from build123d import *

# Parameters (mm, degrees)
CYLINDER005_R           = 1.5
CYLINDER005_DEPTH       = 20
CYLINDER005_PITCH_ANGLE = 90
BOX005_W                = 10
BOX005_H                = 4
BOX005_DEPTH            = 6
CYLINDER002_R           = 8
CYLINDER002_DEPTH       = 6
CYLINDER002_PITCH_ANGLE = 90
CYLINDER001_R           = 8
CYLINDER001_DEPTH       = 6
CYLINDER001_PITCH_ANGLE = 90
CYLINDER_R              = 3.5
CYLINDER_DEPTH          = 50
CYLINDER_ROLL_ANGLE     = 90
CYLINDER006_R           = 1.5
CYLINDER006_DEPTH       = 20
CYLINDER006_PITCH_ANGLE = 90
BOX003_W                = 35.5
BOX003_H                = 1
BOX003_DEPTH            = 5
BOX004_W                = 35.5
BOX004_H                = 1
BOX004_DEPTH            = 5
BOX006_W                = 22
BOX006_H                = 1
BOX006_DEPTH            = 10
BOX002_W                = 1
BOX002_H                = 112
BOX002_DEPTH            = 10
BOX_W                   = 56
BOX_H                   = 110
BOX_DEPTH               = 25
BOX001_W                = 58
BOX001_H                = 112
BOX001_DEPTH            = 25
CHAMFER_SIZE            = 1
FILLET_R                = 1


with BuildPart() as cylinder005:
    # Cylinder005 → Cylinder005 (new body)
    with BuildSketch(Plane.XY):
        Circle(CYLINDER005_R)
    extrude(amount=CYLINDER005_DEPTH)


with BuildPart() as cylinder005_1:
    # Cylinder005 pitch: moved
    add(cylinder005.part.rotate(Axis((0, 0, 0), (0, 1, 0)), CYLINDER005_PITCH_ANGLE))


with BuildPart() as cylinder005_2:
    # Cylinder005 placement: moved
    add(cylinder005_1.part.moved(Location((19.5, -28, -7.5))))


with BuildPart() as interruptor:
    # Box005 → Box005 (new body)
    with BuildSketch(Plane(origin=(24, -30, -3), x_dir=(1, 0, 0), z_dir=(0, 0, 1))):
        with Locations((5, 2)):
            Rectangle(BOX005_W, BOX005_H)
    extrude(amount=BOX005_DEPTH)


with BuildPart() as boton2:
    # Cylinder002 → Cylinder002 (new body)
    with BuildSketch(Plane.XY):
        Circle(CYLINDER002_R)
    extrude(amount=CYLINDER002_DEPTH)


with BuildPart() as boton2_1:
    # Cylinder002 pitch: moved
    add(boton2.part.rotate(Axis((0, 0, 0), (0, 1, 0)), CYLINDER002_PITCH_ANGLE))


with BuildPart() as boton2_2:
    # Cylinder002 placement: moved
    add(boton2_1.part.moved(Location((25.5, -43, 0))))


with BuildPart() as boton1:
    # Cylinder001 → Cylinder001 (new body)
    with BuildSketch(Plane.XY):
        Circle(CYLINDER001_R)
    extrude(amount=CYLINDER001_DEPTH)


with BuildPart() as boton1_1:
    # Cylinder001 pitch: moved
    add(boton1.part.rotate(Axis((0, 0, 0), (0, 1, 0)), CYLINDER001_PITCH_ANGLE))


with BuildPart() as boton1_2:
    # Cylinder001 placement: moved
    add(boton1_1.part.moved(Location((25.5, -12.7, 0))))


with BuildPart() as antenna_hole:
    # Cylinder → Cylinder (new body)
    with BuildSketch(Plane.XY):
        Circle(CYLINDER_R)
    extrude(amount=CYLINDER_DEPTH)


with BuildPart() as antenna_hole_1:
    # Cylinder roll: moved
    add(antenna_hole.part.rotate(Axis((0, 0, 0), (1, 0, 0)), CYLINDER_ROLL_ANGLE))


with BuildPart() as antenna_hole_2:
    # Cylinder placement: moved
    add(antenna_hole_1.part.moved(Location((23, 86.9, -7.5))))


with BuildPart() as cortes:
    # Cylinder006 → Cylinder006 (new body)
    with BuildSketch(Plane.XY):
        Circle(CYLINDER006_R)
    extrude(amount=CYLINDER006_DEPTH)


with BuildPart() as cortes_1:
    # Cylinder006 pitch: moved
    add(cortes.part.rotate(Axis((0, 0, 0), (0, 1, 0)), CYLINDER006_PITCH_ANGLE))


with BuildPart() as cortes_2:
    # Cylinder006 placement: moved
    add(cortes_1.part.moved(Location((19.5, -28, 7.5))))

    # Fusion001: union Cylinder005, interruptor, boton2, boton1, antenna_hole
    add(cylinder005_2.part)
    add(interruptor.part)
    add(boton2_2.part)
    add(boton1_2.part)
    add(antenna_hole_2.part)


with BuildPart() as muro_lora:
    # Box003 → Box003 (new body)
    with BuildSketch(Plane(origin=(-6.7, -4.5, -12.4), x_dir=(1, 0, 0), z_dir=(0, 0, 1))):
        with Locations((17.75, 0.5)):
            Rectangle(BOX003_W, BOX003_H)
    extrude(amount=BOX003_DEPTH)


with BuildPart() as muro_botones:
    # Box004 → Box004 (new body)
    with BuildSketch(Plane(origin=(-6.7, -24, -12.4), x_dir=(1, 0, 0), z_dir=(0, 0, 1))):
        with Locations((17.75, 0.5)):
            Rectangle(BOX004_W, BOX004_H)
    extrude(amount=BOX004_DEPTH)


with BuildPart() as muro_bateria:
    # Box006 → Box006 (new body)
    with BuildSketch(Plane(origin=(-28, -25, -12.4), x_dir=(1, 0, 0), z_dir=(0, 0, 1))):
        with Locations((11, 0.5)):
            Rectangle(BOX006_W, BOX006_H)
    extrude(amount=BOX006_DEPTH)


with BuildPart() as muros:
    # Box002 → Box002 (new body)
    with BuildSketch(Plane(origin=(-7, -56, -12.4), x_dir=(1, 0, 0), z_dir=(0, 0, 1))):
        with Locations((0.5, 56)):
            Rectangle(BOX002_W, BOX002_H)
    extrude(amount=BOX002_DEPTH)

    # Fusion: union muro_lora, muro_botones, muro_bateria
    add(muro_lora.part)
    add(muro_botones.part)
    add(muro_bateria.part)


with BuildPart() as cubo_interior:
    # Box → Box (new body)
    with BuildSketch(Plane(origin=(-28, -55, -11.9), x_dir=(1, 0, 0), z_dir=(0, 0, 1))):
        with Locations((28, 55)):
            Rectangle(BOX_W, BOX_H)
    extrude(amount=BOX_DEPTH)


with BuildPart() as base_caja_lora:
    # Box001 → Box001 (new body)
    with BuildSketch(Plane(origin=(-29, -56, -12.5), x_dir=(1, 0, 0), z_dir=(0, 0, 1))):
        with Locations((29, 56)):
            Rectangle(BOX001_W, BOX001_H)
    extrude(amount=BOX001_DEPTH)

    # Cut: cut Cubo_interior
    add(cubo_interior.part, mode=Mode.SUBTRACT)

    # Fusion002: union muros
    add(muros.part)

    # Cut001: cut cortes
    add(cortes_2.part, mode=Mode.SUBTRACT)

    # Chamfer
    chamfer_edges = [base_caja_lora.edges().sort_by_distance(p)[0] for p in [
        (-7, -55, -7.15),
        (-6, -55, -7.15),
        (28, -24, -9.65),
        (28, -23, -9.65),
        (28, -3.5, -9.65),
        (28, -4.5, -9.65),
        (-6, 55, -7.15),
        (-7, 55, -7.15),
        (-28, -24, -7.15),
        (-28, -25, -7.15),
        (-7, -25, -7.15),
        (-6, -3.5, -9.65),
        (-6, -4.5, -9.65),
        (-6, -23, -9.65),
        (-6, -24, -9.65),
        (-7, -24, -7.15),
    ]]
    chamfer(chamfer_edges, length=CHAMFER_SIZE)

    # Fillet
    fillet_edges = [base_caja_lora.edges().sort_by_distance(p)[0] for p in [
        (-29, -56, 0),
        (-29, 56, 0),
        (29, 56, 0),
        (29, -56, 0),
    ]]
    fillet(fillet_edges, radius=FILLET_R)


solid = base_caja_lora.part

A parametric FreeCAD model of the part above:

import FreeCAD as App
import Part
import Sketcher
Q = App.Units.Quantity


def edges_at(feature, points):
    """Names of the edges that pass closest to the given points."""
    edges = feature.Shape.Edges
    near = lambda p: min(range(len(edges)), key=lambda i: edges[i].distToShape(Part.Vertex(*p))[0])
    return sorted({f"Edge{near(p) + 1}" for p in points})


def add_polygon(sketch, points):
    """Adds a closed chain of lines whose ends are joined by coincident constraints."""
    first, n = sketch.GeometryCount, len(points)
    for a, b in zip(points, points[1:] + points[:1]):
        sketch.addGeometry(Part.LineSegment(App.Vector(*a, 0), App.Vector(*b, 0)), False)
    for i in range(n):
        sketch.addConstraint(Sketcher.Constraint("Coincident", first + i, 2, first + (i + 1) % n, 1))

doc = App.newDocument("Part")
body = doc.addObject("PartDesign::Body", "Body")

sketch1 = body.newObject("Sketcher::SketchObject", "Sketch")
sketch1.AttachmentSupport = (doc.getObject("XY_Plane"), [""])
sketch1.MapMode = "FlatFace"
sketch1.addGeometry(Part.Circle(App.Vector(0, 0, 0), App.Vector(0, 0, 1), 1.5), False)
sketch1.addConstraint([
    Sketcher.Constraint("Coincident", 0, 3, -1, 1),
    Sketcher.Constraint("Diameter", 0, Q("3 mm")),
])
pad1 = body.newObject("PartDesign::Pad", "Pad")
pad1.Profile = sketch1
pad1.Length = 20
body2 = doc.addObject("PartDesign::Body", "Body001")
doc.recompute()

body.Placement = App.Placement(App.Vector(0, 0, 0), App.Rotation(App.Vector(0, 1, 0), 90))
boolean = body2.newObject("PartDesign::Boolean", "Boolean")
boolean.Type = "Fuse"
boolean.addObjects([body])
body3 = doc.addObject("PartDesign::Body", "Body002")
doc.recompute()

body2.Placement = App.Placement(App.Vector(19.5, -28, -7.5), App.Rotation(App.Vector(0, 0, 1), 0))
boolean2 = body3.newObject("PartDesign::Boolean", "Boolean001")
boolean2.Type = "Fuse"
boolean2.addObjects([body2])
body4 = doc.addObject("PartDesign::Body", "Body003")

sketch2 = body4.newObject("Sketcher::SketchObject", "Sketch001")
sketch2.AttachmentSupport = (doc.getObject("XY_Plane003"), [""])
sketch2.MapMode = "FlatFace"
sketch2.AttachmentOffset = App.Placement(App.Vector(0, 0, -3), App.Rotation())
add_polygon(sketch2, [(24, -26), (24, -30), (34, -30), (34, -26)])
sketch2.addConstraint([
    Sketcher.Constraint("Vertical", 0),
    Sketcher.Constraint("Horizontal", 1),
    Sketcher.Constraint("Vertical", 2),
    Sketcher.Constraint("Horizontal", 3),
    Sketcher.Constraint("DistanceX", 1, 1, 1, 2, Q("10 mm")),
    Sketcher.Constraint("DistanceY", 0, 2, 0, 1, Q("4 mm")),
    Sketcher.Constraint("DistanceX", -1, 1, 0, 2, Q("24 mm")),
    Sketcher.Constraint("DistanceY", 0, 2, -1, 1, Q("30 mm")),
])
pad2 = body4.newObject("PartDesign::Pad", "Pad001")
pad2.Profile = sketch2
pad2.Length = 6
body5 = doc.addObject("PartDesign::Body", "Body004")

sketch3 = body5.newObject("Sketcher::SketchObject", "Sketch002")
sketch3.AttachmentSupport = (doc.getObject("XY_Plane004"), [""])
sketch3.MapMode = "FlatFace"
sketch3.addGeometry(Part.Circle(App.Vector(0, 0, 0), App.Vector(0, 0, 1), 8), False)
sketch3.addConstraint([
    Sketcher.Constraint("Coincident", 0, 3, -1, 1),
    Sketcher.Constraint("Diameter", 0, Q("16 mm")),
])
pad3 = body5.newObject("PartDesign::Pad", "Pad002")
pad3.Profile = sketch3
pad3.Length = 6
body6 = doc.addObject("PartDesign::Body", "Body005")
doc.recompute()

body5.Placement = App.Placement(App.Vector(0, 0, 0), App.Rotation(App.Vector(0, 1, 0), 90))
boolean3 = body6.newObject("PartDesign::Boolean", "Boolean002")
boolean3.Type = "Fuse"
boolean3.addObjects([body5])
body7 = doc.addObject("PartDesign::Body", "Body006")
doc.recompute()

body6.Placement = App.Placement(App.Vector(25.5, -43, 0), App.Rotation(App.Vector(0, 0, 1), 0))
boolean4 = body7.newObject("PartDesign::Boolean", "Boolean003")
boolean4.Type = "Fuse"
boolean4.addObjects([body6])
body8 = doc.addObject("PartDesign::Body", "Body007")

sketch4 = body8.newObject("Sketcher::SketchObject", "Sketch003")
sketch4.AttachmentSupport = (doc.getObject("XY_Plane007"), [""])
sketch4.MapMode = "FlatFace"
sketch4.addGeometry(Part.Circle(App.Vector(0, 0, 0), App.Vector(0, 0, 1), 8), False)
sketch4.addConstraint([
    Sketcher.Constraint("Coincident", 0, 3, -1, 1),
    Sketcher.Constraint("Diameter", 0, Q("16 mm")),
])
pad4 = body8.newObject("PartDesign::Pad", "Pad003")
pad4.Profile = sketch4
pad4.Length = 6
body9 = doc.addObject("PartDesign::Body", "Body008")
doc.recompute()

body8.Placement = App.Placement(App.Vector(0, 0, 0), App.Rotation(App.Vector(0, 1, 0), 90))
boolean5 = body9.newObject("PartDesign::Boolean", "Boolean004")
boolean5.Type = "Fuse"
boolean5.addObjects([body8])
body10 = doc.addObject("PartDesign::Body", "Body009")
doc.recompute()

body9.Placement = App.Placement(App.Vector(25.5, -12.7, 0), App.Rotation(App.Vector(0, 0, 1), 0))
boolean6 = body10.newObject("PartDesign::Boolean", "Boolean005")
boolean6.Type = "Fuse"
boolean6.addObjects([body9])
body11 = doc.addObject("PartDesign::Body", "Body010")

sketch5 = body11.newObject("Sketcher::SketchObject", "Sketch004")
sketch5.AttachmentSupport = (doc.getObject("XY_Plane010"), [""])
sketch5.MapMode = "FlatFace"
sketch5.addGeometry(Part.Circle(App.Vector(0, 0, 0), App.Vector(0, 0, 1), 3.5), False)
sketch5.addConstraint([
    Sketcher.Constraint("Coincident", 0, 3, -1, 1),
    Sketcher.Constraint("Diameter", 0, Q("7 mm")),
])
pad5 = body11.newObject("PartDesign::Pad", "Pad004")
pad5.Profile = sketch5
pad5.Length = 50
body12 = doc.addObject("PartDesign::Body", "Body011")
doc.recompute()

body11.Placement = App.Placement(App.Vector(0, 0, 0), App.Rotation(App.Vector(1, 0, 0), 90))
boolean7 = body12.newObject("PartDesign::Boolean", "Boolean006")
boolean7.Type = "Fuse"
boolean7.addObjects([body11])
body13 = doc.addObject("PartDesign::Body", "Body012")
doc.recompute()

body12.Placement = App.Placement(App.Vector(23, 86.9, -7.5), App.Rotation(App.Vector(0, 0, 1), 0))
boolean8 = body13.newObject("PartDesign::Boolean", "Boolean007")
boolean8.Type = "Fuse"
boolean8.addObjects([body12])
body14 = doc.addObject("PartDesign::Body", "Body013")

sketch6 = body14.newObject("Sketcher::SketchObject", "Sketch005")
sketch6.AttachmentSupport = (doc.getObject("XY_Plane013"), [""])
sketch6.MapMode = "FlatFace"
sketch6.addGeometry(Part.Circle(App.Vector(0, 0, 0), App.Vector(0, 0, 1), 1.5), False)
sketch6.addConstraint([
    Sketcher.Constraint("Coincident", 0, 3, -1, 1),
    Sketcher.Constraint("Diameter", 0, Q("3 mm")),
])
pad6 = body14.newObject("PartDesign::Pad", "Pad005")
pad6.Profile = sketch6
pad6.Length = 20
body15 = doc.addObject("PartDesign::Body", "Body014")
doc.recompute()

body14.Placement = App.Placement(App.Vector(0, 0, 0), App.Rotation(App.Vector(0, 1, 0), 90))
boolean9 = body15.newObject("PartDesign::Boolean", "Boolean008")
boolean9.Type = "Fuse"
boolean9.addObjects([body14])
body16 = doc.addObject("PartDesign::Body", "Body015")
body16.AllowCompound = True
doc.recompute()

body15.Placement = App.Placement(App.Vector(19.5, -28, 7.5), App.Rotation(App.Vector(0, 0, 1), 0))
boolean10 = body16.newObject("PartDesign::Boolean", "Boolean009")
boolean10.Type = "Fuse"
boolean10.addObjects([body15])
doc.recompute()

boolean11 = body16.newObject("PartDesign::Boolean", "Boolean010")
boolean11.Type = "Fuse"
boolean11.addObjects([body3])
doc.recompute()

boolean12 = body16.newObject("PartDesign::Boolean", "Boolean011")
boolean12.Type = "Fuse"
boolean12.addObjects([body4])
doc.recompute()

boolean13 = body16.newObject("PartDesign::Boolean", "Boolean012")
boolean13.Type = "Fuse"
boolean13.addObjects([body7])
doc.recompute()

boolean14 = body16.newObject("PartDesign::Boolean", "Boolean013")
boolean14.Type = "Fuse"
boolean14.addObjects([body10])
doc.recompute()

boolean15 = body16.newObject("PartDesign::Boolean", "Boolean014")
boolean15.Type = "Fuse"
boolean15.addObjects([body13])
body17 = doc.addObject("PartDesign::Body", "Body016")

sketch7 = body17.newObject("Sketcher::SketchObject", "Sketch006")
sketch7.AttachmentSupport = (doc.getObject("XY_Plane016"), [""])
sketch7.MapMode = "FlatFace"
sketch7.AttachmentOffset = App.Placement(App.Vector(0, 0, -12.4), App.Rotation())
add_polygon(sketch7, [(-6.7, -3.5), (-6.7, -4.5), (28.8, -4.5), (28.8, -3.5)])
sketch7.addConstraint([
    Sketcher.Constraint("Vertical", 0),
    Sketcher.Constraint("Horizontal", 1),
    Sketcher.Constraint("Vertical", 2),
    Sketcher.Constraint("Horizontal", 3),
    Sketcher.Constraint("DistanceY", 0, 2, 0, 1, Q("1 mm")),
    Sketcher.Constraint("DistanceX", 1, 1, 1, 2, Q("35.5 mm")),
    Sketcher.Constraint("DistanceX", 0, 2, -1, 1, Q("6.7 mm")),
    Sketcher.Constraint("DistanceY", 0, 2, -1, 1, Q("4.5 mm")),
])
pad7 = body17.newObject("PartDesign::Pad", "Pad006")
pad7.Profile = sketch7
pad7.Length = 5
body18 = doc.addObject("PartDesign::Body", "Body017")

sketch8 = body18.newObject("Sketcher::SketchObject", "Sketch007")
sketch8.AttachmentSupport = (doc.getObject("XY_Plane017"), [""])
sketch8.MapMode = "FlatFace"
sketch8.AttachmentOffset = App.Placement(App.Vector(0, 0, -12.4), App.Rotation())
add_polygon(sketch8, [(-6.7, -23), (-6.7, -24), (28.8, -24), (28.8, -23)])
sketch8.addConstraint([
    Sketcher.Constraint("Vertical", 0),
    Sketcher.Constraint("Horizontal", 1),
    Sketcher.Constraint("Vertical", 2),
    Sketcher.Constraint("Horizontal", 3),
    Sketcher.Constraint("DistanceY", 0, 2, 0, 1, Q("1 mm")),
    Sketcher.Constraint("DistanceX", 1, 1, 1, 2, Q("35.5 mm")),
    Sketcher.Constraint("DistanceY", 0, 2, -1, 1, Q("24 mm")),
    Sketcher.Constraint("DistanceX", 0, 2, -1, 1, Q("6.7 mm")),
])
pad8 = body18.newObject("PartDesign::Pad", "Pad007")
pad8.Profile = sketch8
pad8.Length = 5
body19 = doc.addObject("PartDesign::Body", "Body018")

sketch9 = body19.newObject("Sketcher::SketchObject", "Sketch008")
sketch9.AttachmentSupport = (doc.getObject("XY_Plane018"), [""])
sketch9.MapMode = "FlatFace"
sketch9.AttachmentOffset = App.Placement(App.Vector(0, 0, -12.4), App.Rotation())
add_polygon(sketch9, [(-28, -24), (-28, -25), (-6, -25), (-6, -24)])
sketch9.addConstraint([
    Sketcher.Constraint("Vertical", 0),
    Sketcher.Constraint("Horizontal", 1),
    Sketcher.Constraint("Vertical", 2),
    Sketcher.Constraint("Horizontal", 3),
    Sketcher.Constraint("DistanceX", 1, 1, 1, 2, Q("22 mm")),
    Sketcher.Constraint("DistanceY", 0, 2, 0, 1, Q("1 mm")),
    Sketcher.Constraint("DistanceX", 0, 2, -1, 1, Q("28 mm")),
    Sketcher.Constraint("DistanceY", 0, 2, -1, 1, Q("25 mm")),
])
pad9 = body19.newObject("PartDesign::Pad", "Pad008")
pad9.Profile = sketch9
pad9.Length = 10
body20 = doc.addObject("PartDesign::Body", "Body019")

sketch10 = body20.newObject("Sketcher::SketchObject", "Sketch009")
sketch10.AttachmentSupport = (doc.getObject("XY_Plane019"), [""])
sketch10.MapMode = "FlatFace"
sketch10.AttachmentOffset = App.Placement(App.Vector(0, 0, -12.4), App.Rotation())
add_polygon(sketch10, [(-7, 56), (-7, -56), (-6, -56), (-6, 56)])
sketch10.addConstraint([
    Sketcher.Constraint("Vertical", 0),
    Sketcher.Constraint("Horizontal", 1),
    Sketcher.Constraint("Vertical", 2),
    Sketcher.Constraint("Horizontal", 3),
    Sketcher.Constraint("DistanceX", 1, 1, 1, 2, Q("1 mm")),
    Sketcher.Constraint("DistanceY", 0, 2, 0, 1, Q("112 mm")),
    Sketcher.Constraint("DistanceX", 0, 2, -1, 1, Q("7 mm")),
    Sketcher.Constraint("DistanceY", 0, 2, -1, 1, Q("56 mm")),
])
pad10 = body20.newObject("PartDesign::Pad", "Pad009")
pad10.Profile = sketch10
pad10.Length = 10
doc.recompute()

boolean16 = body20.newObject("PartDesign::Boolean", "Boolean015")
boolean16.Type = "Fuse"
boolean16.addObjects([body17])
doc.recompute()

boolean17 = body20.newObject("PartDesign::Boolean", "Boolean016")
boolean17.Type = "Fuse"
boolean17.addObjects([body18])
doc.recompute()

boolean18 = body20.newObject("PartDesign::Boolean", "Boolean017")
boolean18.Type = "Fuse"
boolean18.addObjects([body19])
body21 = doc.addObject("PartDesign::Body", "Body020")

sketch11 = body21.newObject("Sketcher::SketchObject", "Sketch010")
sketch11.AttachmentSupport = (doc.getObject("XY_Plane020"), [""])
sketch11.MapMode = "FlatFace"
sketch11.AttachmentOffset = App.Placement(App.Vector(0, 0, -11.9), App.Rotation())
add_polygon(sketch11, [(-28, 55), (-28, -55), (28, -55), (28, 55)])
sketch11.addConstraint([
    Sketcher.Constraint("Vertical", 0),
    Sketcher.Constraint("Horizontal", 1),
    Sketcher.Constraint("Vertical", 2),
    Sketcher.Constraint("Horizontal", 3),
    Sketcher.Constraint("Symmetric", 0, 2, 2, 2, -1, 1),
    Sketcher.Constraint("DistanceX", 1, 1, 1, 2, Q("56 mm")),
    Sketcher.Constraint("DistanceY", 0, 2, 0, 1, Q("110 mm")),
])
pad11 = body21.newObject("PartDesign::Pad", "Pad010")
pad11.Profile = sketch11
pad11.Length = 25
body22 = doc.addObject("PartDesign::Body", "Body021")

sketch12 = body22.newObject("Sketcher::SketchObject", "Sketch011")
sketch12.AttachmentSupport = (doc.getObject("XY_Plane021"), [""])
sketch12.MapMode = "FlatFace"
sketch12.AttachmentOffset = App.Placement(App.Vector(0, 0, -12.5), App.Rotation())
add_polygon(sketch12, [(-29, 56), (-29, -56), (29, -56), (29, 56)])
sketch12.addConstraint([
    Sketcher.Constraint("Vertical", 0),
    Sketcher.Constraint("Horizontal", 1),
    Sketcher.Constraint("Vertical", 2),
    Sketcher.Constraint("Horizontal", 3),
    Sketcher.Constraint("Symmetric", 0, 2, 2, 2, -1, 1),
    Sketcher.Constraint("DistanceX", 1, 1, 1, 2, Q("58 mm")),
    Sketcher.Constraint("DistanceY", 0, 2, 0, 1, Q("112 mm")),
])
pad12 = body22.newObject("PartDesign::Pad", "Pad011")
pad12.Profile = sketch12
pad12.Length = 25
doc.recompute()

boolean19 = body22.newObject("PartDesign::Boolean", "Boolean018")
boolean19.Type = "Cut"
boolean19.addObjects([body21])
doc.recompute()

boolean20 = body22.newObject("PartDesign::Boolean", "Boolean019")
boolean20.Type = "Fuse"
boolean20.addObjects([body20])
doc.recompute()

boolean21 = body22.newObject("PartDesign::Boolean", "Boolean020")
boolean21.Type = "Cut"
boolean21.addObjects([body16])
doc.recompute()

chamfer = body22.newObject("PartDesign::Chamfer", "Chamfer")
chamfer.Base = (boolean21, edges_at(boolean21, [
    (-7, -55, -7.15),
    (-6, -55, -7.15),
    (28, -24, -9.65),
    (28, -23, -9.65),
    (28, -3.5, -9.65),
    (28, -4.5, -9.65),
    (-6, 55, -7.15),
    (-7, 55, -7.15),
    (-28, -24, -7.15),
    (-28, -25, -7.15),
    (-7, -25, -7.15),
    (-6, -3.5, -9.65),
    (-6, -4.5, -9.65),
    (-6, -23, -9.65),
    (-6, -24, -9.65),
    (-7, -24, -7.15),
]))
chamfer.Size = 1
doc.recompute()

fillet = body22.newObject("PartDesign::Fillet", "Fillet")
fillet.Base = (chamfer, edges_at(chamfer, [
    (-29, -56, 0),
    (-29, 56, 0),
    (29, 56, 0),
    (29, -56, 0),
]))
fillet.Radius = 1

doc.recompute()
